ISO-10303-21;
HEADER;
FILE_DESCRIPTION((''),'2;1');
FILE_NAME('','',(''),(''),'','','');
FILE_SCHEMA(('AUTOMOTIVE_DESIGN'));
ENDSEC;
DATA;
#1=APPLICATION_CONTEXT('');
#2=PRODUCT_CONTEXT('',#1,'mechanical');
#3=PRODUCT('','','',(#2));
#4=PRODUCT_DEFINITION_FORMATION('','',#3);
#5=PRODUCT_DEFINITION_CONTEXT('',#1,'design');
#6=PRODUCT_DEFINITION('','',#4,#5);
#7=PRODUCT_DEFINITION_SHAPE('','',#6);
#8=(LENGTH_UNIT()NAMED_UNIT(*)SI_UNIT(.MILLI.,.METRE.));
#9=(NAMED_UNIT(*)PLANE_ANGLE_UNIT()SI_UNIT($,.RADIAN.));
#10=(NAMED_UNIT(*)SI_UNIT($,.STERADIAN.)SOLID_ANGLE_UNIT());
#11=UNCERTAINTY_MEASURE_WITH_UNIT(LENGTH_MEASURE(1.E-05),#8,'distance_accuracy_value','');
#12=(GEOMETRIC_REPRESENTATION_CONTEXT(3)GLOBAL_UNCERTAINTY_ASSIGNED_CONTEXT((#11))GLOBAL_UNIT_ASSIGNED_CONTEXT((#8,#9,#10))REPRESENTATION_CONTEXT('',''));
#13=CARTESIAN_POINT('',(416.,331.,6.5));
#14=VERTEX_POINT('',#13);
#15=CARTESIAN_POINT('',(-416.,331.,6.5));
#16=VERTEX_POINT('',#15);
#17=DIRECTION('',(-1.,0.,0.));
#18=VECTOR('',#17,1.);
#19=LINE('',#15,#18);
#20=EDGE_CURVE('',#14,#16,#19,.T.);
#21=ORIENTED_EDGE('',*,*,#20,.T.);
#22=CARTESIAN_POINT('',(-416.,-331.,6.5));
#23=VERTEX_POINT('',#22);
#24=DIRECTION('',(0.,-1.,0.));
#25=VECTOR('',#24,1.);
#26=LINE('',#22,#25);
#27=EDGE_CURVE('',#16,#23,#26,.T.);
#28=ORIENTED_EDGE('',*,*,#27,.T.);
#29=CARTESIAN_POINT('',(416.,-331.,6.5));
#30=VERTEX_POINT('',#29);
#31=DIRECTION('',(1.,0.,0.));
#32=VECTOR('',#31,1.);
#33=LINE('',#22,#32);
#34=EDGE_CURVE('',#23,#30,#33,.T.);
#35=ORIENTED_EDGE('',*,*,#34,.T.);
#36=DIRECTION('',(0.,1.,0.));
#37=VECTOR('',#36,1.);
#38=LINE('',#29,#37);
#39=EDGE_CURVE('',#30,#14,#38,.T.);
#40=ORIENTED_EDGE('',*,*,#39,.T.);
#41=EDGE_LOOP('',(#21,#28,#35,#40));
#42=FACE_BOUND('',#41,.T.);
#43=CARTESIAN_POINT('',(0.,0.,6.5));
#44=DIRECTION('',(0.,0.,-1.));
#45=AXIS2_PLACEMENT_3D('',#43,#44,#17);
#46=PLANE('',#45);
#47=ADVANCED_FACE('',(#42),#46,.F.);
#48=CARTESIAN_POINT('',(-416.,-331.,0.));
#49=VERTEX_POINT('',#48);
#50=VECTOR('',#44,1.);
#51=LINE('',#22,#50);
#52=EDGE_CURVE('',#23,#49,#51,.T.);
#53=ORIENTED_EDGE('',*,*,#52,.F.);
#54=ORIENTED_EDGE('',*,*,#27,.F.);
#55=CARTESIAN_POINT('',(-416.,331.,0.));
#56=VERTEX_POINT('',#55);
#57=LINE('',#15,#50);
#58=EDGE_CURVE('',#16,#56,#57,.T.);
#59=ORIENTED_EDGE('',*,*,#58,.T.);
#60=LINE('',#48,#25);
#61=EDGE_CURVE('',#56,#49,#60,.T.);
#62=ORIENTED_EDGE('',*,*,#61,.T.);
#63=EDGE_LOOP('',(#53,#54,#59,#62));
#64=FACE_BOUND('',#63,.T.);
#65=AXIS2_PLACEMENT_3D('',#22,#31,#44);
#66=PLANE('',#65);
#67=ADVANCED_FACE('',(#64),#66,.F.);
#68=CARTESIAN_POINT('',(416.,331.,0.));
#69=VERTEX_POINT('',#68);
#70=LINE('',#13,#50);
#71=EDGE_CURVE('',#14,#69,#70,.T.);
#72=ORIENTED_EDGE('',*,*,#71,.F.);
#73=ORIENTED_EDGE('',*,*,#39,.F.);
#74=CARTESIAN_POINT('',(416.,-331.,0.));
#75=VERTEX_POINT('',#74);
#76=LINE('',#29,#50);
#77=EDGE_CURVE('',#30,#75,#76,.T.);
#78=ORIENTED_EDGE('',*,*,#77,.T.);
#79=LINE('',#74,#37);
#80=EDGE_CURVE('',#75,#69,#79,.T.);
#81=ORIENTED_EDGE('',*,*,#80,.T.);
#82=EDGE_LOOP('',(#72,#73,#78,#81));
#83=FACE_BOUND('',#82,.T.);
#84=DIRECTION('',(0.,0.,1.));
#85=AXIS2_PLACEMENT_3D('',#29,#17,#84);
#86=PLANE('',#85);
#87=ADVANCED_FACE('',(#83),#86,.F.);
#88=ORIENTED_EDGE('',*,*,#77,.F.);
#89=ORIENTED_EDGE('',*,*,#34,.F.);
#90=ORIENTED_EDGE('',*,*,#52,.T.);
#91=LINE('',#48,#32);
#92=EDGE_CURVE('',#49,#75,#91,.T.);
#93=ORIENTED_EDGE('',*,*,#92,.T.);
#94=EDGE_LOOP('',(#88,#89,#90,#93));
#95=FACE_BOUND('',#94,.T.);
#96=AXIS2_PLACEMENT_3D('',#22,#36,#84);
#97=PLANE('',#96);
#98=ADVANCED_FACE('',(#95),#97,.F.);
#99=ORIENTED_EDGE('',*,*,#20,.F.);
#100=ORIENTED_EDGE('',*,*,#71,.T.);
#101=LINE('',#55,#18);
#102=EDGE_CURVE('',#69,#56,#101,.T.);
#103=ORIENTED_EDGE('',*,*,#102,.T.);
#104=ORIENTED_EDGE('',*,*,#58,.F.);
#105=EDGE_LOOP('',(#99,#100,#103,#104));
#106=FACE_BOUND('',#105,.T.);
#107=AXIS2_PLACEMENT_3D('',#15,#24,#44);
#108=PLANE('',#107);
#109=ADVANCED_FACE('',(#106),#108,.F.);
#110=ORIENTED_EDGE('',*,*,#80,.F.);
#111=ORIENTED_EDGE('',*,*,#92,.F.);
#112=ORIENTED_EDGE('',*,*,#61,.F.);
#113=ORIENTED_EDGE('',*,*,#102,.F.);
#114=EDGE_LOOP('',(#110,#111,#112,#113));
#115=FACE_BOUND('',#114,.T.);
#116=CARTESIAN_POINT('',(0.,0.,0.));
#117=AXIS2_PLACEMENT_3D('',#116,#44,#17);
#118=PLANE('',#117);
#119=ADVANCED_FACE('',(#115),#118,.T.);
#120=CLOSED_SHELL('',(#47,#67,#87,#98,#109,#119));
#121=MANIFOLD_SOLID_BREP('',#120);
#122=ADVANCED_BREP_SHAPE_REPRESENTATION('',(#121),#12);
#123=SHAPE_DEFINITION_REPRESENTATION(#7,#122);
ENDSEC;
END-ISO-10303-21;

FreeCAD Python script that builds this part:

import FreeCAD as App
import Part
import Sketcher
from FreeCAD import Vector
Q = App.Units.Quantity


def add_polygon(sketch, points):
    """Adds a closed chain of lines whose ends are joined by coincident constraints."""
    first, n = sketch.GeometryCount, len(points)
    for a, b in zip(points, points[1:] + points[:1]):
        sketch.addGeometry(Part.LineSegment(App.Vector(*a, 0), App.Vector(*b, 0)), False)
    for i in range(n):
        sketch.addConstraint(Sketcher.Constraint("Coincident", first + i, 2, first + (i + 1) % n, 1))

doc = App.newDocument("Part")
body = doc.addObject("PartDesign::Body", "Body")

# Sketch on XY plane
sketch1 = body.newObject("Sketcher::SketchObject", "Sketch")
sketch1.AttachmentSupport = (doc.getObject("XY_Plane"), [""])
sketch1.MapMode = "FlatFace"
add_polygon(sketch1, [(-416, 331), (-416, -331), (416, -331), (416, 331)])  # lines 0-3
sketch1.addConstraint(Sketcher.Constraint("Vertical", 0))
sketch1.addConstraint(Sketcher.Constraint("Horizontal", 1))
sketch1.addConstraint(Sketcher.Constraint("Vertical", 2))
sketch1.addConstraint(Sketcher.Constraint("Horizontal", 3))
sketch1.addConstraint(Sketcher.Constraint("Symmetric", 0, 2, 2, 2, -1, 1))
sketch1.addConstraint(Sketcher.Constraint("DistanceX", 1, 1, 1, 2, Q("832 mm")))
sketch1.addConstraint(Sketcher.Constraint("DistanceY", 0, 2, 0, 1, Q("662 mm")))
pad1 = body.newObject("PartDesign::Pad", "Pad")
pad1.Profile = sketch1
pad1.Length = 6.5

doc.recompute()
